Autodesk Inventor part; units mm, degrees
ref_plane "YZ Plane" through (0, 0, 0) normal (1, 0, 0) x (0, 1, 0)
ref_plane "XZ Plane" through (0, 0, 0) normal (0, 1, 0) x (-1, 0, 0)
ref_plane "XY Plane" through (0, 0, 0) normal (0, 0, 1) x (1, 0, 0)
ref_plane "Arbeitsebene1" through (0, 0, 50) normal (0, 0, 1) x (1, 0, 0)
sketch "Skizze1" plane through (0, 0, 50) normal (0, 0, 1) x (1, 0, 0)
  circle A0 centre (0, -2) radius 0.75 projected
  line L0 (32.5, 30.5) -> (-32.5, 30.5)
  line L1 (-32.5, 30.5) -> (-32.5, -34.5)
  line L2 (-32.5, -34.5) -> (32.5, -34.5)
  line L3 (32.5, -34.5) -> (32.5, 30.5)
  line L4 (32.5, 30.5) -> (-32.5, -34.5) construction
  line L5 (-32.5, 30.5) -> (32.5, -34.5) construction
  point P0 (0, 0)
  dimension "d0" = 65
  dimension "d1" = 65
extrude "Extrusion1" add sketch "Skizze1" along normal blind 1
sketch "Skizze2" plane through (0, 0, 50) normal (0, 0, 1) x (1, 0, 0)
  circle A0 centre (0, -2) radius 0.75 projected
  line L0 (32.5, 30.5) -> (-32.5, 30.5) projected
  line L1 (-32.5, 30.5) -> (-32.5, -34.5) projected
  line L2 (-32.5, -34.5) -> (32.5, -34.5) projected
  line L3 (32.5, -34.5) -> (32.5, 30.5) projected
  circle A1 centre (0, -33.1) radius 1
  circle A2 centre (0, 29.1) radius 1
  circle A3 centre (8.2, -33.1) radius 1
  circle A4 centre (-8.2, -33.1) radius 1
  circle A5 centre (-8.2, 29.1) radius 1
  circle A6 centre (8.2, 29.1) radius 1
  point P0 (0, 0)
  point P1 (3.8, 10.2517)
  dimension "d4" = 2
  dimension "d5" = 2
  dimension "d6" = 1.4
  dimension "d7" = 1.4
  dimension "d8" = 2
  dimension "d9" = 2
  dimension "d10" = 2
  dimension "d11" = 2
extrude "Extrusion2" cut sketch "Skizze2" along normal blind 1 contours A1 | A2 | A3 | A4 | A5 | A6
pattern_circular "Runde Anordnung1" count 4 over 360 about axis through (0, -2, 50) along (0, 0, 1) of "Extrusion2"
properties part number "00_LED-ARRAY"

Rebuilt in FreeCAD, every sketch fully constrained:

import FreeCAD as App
import Part
import Sketcher
from FreeCAD import Vector
Q = App.Units.Quantity


def add_polygon(sketch, points):
    """Adds a closed chain of lines whose ends are joined by coincident constraints."""
    first, n = sketch.GeometryCount, len(points)
    for a, b in zip(points, points[1:] + points[:1]):
        sketch.addGeometry(Part.LineSegment(App.Vector(*a, 0), App.Vector(*b, 0)), False)
    for i in range(n):
        sketch.addConstraint(Sketcher.Constraint("Coincident", first + i, 2, first + (i + 1) % n, 1))

doc = App.newDocument("Part")
body = doc.addObject("PartDesign::Body", "Body")

# Sketch on XY plane
sketch1 = body.newObject("Sketcher::SketchObject", "Sketch")
sketch1.AttachmentSupport = (doc.getObject("XY_Plane"), [""])
sketch1.MapMode = "FlatFace"
sketch1.AttachmentOffset = App.Placement(Vector(0, 0, 50), App.Rotation())
add_polygon(sketch1, [(32.5, -34.5), (32.5, 30.5), (-32.5, 30.5), (-32.5, -34.5)])  # lines 0-3
sketch1.addGeometry(Part.Circle(Vector(0, -2, 0), Vector(0, 0, 1), 0.8), False)  # 4
sketch1.addConstraint([
    Sketcher.Constraint("Vertical", 0),
    Sketcher.Constraint("Horizontal", 1),
    Sketcher.Constraint("Vertical", 2),
    Sketcher.Constraint("Horizontal", 3),
    Sketcher.Constraint("PointOnObject", 4, 3, -2),
    Sketcher.Constraint("Equal", 3, 0),
    Sketcher.Constraint("DistanceX", 1, 2, 1, 1, Q("65 mm")),
    Sketcher.Constraint("Diameter", 4, Q("1.5 mm")),
    Sketcher.Constraint("DistanceY", 4, 3, -1, 1, Q("2 mm")),
    Sketcher.Constraint("DistanceX", -1, 1, 0, 2, Q("32.5 mm")),
    Sketcher.Constraint("DistanceY", -1, 1, 0, 2, Q("30.5 mm")),
])
pad1 = body.newObject("PartDesign::Pad", "Pad")
pad1.Profile = sketch1
pad1.Length = 1

# Sketch on XY plane
sketch2 = body.newObject("Sketcher::SketchObject", "Sketch001")
sketch2.AttachmentSupport = (doc.getObject("XY_Plane"), [""])
sketch2.MapMode = "FlatFace"
sketch2.AttachmentOffset = App.Placement(Vector(0, 0, 50), App.Rotation())
sketch2.addGeometry([
    Part.Circle(Vector(0, -33.1, 0), Vector(0, 0, 1), 1),  # 0
    Part.Circle(Vector(0, 29.1, 0), Vector(0, 0, 1), 1),  # 1
    Part.Circle(Vector(8.2, -33.1, 0), Vector(0, 0, 1), 1),  # 2
    Part.Circle(Vector(-8.2, -33.1, 0), Vector(0, 0, 1), 1),  # 3
    Part.Circle(Vector(-8.2, 29.1, 0), Vector(0, 0, 1), 1),  # 4
    Part.Circle(Vector(8.2, 29.1, 0), Vector(0, 0, 1), 1),  # 5
], False)
sketch2.addConstraint([
    Sketcher.Constraint("Equal", 0, 1),
    Sketcher.Constraint("Equal", 1, 2),
    Sketcher.Constraint("Equal", 2, 3),
    Sketcher.Constraint("Equal", 3, 4),
    Sketcher.Constraint("Equal", 4, 5),
    Sketcher.Constraint("Symmetric", 2, 3, 3, 3, -2),
    Sketcher.Constraint("Symmetric", 4, 3, 5, 3, -2),
    Sketcher.Constraint("PointOnObject", 0, 3, -2),
    Sketcher.Constraint("PointOnObject", 1, 3, -2),
    Sketcher.Constraint("Horizontal", 0, 3, 2, 3),
    Sketcher.Constraint("Horizontal", 1, 3, 4, 3),
    Sketcher.Constraint("Vertical", 3, 3, 4, 3),
    Sketcher.Constraint("Diameter", 0, Q("2 mm")),
    Sketcher.Constraint("DistanceY", 0, 3, -1, 1, Q("33.1 mm")),
    Sketcher.Constraint("DistanceY", -1, 1, 1, 3, Q("29.1 mm")),
    Sketcher.Constraint("DistanceX", -1, 1, 2, 3, Q("8.2 mm")),
])
pocket1 = body.newObject("PartDesign::Pocket", "Pocket")
pocket1.Profile = sketch2
pocket1.Length = 1
pocket1.Reversed = True
doc.recompute()

datumline = body.newObject("PartDesign::Line", "DatumLine")
datumline.Placement = App.Placement(Vector(0, -2, 0), App.Rotation(Vector(0, 0, 1), Vector(0, 0, 1)))
polarpattern = body.newObject("PartDesign::PolarPattern", "PolarPattern")
polarpattern.Originals = [pocket1]
polarpattern.Axis = (datumline, [""])
polarpattern.Angle = 360
polarpattern.Occurrences = 4
body.Tip = polarpattern

doc.recompute()
